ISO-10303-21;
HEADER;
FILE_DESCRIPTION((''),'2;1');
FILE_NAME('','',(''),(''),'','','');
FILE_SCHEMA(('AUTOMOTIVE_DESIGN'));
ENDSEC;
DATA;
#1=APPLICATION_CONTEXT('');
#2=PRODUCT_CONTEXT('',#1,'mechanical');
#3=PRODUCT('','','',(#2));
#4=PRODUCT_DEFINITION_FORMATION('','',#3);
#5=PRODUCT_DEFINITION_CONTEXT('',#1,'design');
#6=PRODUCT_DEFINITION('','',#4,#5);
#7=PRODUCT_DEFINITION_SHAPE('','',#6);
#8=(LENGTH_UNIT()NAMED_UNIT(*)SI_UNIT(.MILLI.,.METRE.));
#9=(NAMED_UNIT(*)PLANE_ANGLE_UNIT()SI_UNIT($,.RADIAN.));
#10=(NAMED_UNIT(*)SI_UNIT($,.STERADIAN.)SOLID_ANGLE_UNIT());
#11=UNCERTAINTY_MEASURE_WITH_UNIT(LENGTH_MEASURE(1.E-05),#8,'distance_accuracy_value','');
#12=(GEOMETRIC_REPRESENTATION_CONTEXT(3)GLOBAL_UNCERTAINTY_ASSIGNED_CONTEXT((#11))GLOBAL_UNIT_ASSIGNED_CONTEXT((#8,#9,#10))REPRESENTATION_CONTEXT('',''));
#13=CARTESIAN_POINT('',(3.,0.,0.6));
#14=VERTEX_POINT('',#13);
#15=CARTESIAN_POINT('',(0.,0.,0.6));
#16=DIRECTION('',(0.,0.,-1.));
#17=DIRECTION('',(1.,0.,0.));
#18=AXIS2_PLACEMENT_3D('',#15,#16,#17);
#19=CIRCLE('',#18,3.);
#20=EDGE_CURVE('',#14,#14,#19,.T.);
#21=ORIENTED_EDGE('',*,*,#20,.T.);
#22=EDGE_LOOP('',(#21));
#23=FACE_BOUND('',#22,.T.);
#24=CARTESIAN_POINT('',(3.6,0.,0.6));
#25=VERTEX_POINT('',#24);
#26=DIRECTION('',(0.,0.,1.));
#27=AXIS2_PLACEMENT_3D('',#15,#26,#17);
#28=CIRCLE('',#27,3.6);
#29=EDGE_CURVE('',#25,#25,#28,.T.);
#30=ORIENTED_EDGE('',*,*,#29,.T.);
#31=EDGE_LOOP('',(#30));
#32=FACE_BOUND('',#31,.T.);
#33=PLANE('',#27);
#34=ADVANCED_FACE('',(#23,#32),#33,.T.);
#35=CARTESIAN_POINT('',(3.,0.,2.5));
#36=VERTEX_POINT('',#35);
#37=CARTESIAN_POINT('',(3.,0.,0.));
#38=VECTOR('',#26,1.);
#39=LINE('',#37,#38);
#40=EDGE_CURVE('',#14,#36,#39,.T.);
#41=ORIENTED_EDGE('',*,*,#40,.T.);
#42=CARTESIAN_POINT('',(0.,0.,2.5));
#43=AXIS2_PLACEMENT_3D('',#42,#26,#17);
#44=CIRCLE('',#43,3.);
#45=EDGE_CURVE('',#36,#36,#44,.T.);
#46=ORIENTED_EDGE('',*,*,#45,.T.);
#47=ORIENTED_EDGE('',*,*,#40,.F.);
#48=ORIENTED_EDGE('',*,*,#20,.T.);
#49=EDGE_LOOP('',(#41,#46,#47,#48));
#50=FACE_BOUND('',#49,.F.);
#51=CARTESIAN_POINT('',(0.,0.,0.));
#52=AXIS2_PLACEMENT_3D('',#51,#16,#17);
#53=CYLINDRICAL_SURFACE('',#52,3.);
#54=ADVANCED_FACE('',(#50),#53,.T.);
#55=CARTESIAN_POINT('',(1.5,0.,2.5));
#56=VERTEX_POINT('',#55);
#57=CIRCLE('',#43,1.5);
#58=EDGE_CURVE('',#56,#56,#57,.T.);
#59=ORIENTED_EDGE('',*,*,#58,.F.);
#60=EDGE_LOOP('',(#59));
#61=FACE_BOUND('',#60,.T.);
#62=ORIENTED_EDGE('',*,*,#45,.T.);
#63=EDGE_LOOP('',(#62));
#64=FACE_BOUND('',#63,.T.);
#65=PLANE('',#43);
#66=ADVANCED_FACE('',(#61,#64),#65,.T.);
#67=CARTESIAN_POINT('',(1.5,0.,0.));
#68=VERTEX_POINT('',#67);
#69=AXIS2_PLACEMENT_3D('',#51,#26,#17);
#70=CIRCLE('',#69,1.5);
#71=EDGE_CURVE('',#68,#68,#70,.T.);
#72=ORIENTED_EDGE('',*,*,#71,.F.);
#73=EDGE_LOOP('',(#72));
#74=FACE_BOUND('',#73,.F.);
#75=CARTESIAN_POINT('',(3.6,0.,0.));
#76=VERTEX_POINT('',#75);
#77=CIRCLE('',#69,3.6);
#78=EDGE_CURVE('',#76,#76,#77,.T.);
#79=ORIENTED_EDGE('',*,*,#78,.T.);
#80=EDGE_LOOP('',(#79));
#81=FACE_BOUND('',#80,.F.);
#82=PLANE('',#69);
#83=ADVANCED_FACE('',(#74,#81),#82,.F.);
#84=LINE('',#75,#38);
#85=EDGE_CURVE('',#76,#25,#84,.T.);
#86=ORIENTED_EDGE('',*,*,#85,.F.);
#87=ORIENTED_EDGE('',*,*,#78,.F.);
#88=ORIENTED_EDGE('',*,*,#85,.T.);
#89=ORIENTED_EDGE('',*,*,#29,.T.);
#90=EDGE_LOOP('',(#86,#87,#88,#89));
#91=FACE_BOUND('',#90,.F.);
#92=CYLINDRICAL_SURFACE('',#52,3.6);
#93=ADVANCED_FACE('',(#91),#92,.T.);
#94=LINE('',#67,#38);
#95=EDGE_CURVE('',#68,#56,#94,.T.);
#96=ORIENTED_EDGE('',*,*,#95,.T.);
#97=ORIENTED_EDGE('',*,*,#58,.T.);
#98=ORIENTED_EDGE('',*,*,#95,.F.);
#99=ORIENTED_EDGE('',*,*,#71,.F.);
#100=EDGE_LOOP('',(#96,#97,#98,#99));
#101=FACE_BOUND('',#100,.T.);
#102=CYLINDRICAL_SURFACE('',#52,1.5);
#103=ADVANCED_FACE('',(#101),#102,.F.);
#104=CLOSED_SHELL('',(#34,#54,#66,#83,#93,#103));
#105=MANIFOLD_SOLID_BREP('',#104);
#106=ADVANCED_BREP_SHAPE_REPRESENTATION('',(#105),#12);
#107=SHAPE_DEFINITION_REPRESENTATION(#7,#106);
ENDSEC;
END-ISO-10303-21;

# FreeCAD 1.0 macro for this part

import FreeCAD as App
import Part
import Sketcher

V = App.Vector
Q = App.Units.Quantity

doc = App.newDocument("Part")
body = doc.addObject("PartDesign::Body", "Body")

# Sketch on XY plane
sketch1 = body.newObject("Sketcher::SketchObject", "Sketch")
sketch1.AttachmentSupport = (doc.getObject("XY_Plane"), [""])
sketch1.MapMode = "FlatFace"
sketch1.addGeometry([
    Part.Circle(V(0, 0, 0), V(0, 0, 1), 3),
    Part.Circle(V(0, 0, 0), V(0, 0, 1), 1.5),
], False)
sketch1.addConstraint([
    Sketcher.Constraint("Coincident", 0, 3, -1, 1),
    Sketcher.Constraint("Coincident", 1, 3, -1, 1),
    Sketcher.Constraint("Diameter", 0, Q("6 mm")),
    Sketcher.Constraint("Diameter", 1, Q("3 mm")),
])
pad1 = body.newObject("PartDesign::Pad", "Pad")
pad1.Profile = sketch1
pad1.Length = 2.5

# Sketch on XY plane
sketch2 = body.newObject("Sketcher::SketchObject", "Sketch001")
sketch2.AttachmentSupport = (doc.getObject("XY_Plane"), [""])
sketch2.MapMode = "FlatFace"
sketch2.addGeometry([
    Part.Circle(V(0, 0, 0), V(0, 0, 1), 3.6),
    Part.Circle(V(0, 0, 0), V(0, 0, 1), 1.5),
], False)
sketch2.addConstraint([
    Sketcher.Constraint("Coincident", 0, 3, -1, 1),
    Sketcher.Constraint("Coincident", 1, 3, -1, 1),
    Sketcher.Constraint("Diameter", 1, Q("3 mm")),
    Sketcher.Constraint("Diameter", 0, Q("7.2 mm")),
])
pad2 = body.newObject("PartDesign::Pad", "Pad001")
pad2.Profile = sketch2
pad2.Length = 0.6

doc.recompute()
